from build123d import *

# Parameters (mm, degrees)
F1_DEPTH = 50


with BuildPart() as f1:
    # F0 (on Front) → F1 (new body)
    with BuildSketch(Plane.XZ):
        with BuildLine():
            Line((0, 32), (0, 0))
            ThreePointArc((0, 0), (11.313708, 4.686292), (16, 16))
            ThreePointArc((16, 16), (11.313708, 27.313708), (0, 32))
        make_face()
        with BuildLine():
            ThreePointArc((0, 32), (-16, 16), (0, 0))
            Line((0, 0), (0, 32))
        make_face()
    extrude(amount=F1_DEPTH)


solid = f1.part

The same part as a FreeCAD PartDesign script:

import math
import FreeCAD as App
import Part
import Sketcher
Q = App.Units.Quantity

doc = App.newDocument("Part")
body = doc.addObject("PartDesign::Body", "Body")

# Sketch on XZ plane
sketch1 = body.newObject("Sketcher::SketchObject", "Sketch")
sketch1.AttachmentSupport = (doc.getObject("XZ_Plane"), [""])
sketch1.MapMode = "FlatFace"
sketch1.addGeometry([
    Part.ArcOfCircle(Part.Circle(App.Vector(0, 16, 0), App.Vector(0, 0, 1), 16), math.radians(-90), math.radians(0)),
    Part.ArcOfCircle(Part.Circle(App.Vector(0, 16, 0), App.Vector(0, 0, 1), 16), math.radians(0), math.radians(90)),
    Part.ArcOfCircle(Part.Circle(App.Vector(0, 16, 0), App.Vector(0, 0, 1), 16), math.radians(90), math.radians(270)),
], False)
sketch1.addConstraint([
    Sketcher.Constraint("Tangent", 0, 2, 1, 1),
    Sketcher.Constraint("Tangent", 1, 2, 2, 1),
    Sketcher.Constraint("Tangent", 2, 2, 0, 1),
    Sketcher.Constraint("Coincident", 2, 2, -1, 1),
    Sketcher.Constraint("PointOnObject", 0, 3, -2),
    Sketcher.Constraint("PointOnObject", 1, 2, -2),
    Sketcher.Constraint("Horizontal", 2, 3, 0, 2),
    Sketcher.Constraint("Radius", 0, Q("16.000002 mm")),
])
pad1 = body.newObject("PartDesign::Pad", "Pad")
pad1.Profile = sketch1
pad1.Length = 50

doc.recompute()
